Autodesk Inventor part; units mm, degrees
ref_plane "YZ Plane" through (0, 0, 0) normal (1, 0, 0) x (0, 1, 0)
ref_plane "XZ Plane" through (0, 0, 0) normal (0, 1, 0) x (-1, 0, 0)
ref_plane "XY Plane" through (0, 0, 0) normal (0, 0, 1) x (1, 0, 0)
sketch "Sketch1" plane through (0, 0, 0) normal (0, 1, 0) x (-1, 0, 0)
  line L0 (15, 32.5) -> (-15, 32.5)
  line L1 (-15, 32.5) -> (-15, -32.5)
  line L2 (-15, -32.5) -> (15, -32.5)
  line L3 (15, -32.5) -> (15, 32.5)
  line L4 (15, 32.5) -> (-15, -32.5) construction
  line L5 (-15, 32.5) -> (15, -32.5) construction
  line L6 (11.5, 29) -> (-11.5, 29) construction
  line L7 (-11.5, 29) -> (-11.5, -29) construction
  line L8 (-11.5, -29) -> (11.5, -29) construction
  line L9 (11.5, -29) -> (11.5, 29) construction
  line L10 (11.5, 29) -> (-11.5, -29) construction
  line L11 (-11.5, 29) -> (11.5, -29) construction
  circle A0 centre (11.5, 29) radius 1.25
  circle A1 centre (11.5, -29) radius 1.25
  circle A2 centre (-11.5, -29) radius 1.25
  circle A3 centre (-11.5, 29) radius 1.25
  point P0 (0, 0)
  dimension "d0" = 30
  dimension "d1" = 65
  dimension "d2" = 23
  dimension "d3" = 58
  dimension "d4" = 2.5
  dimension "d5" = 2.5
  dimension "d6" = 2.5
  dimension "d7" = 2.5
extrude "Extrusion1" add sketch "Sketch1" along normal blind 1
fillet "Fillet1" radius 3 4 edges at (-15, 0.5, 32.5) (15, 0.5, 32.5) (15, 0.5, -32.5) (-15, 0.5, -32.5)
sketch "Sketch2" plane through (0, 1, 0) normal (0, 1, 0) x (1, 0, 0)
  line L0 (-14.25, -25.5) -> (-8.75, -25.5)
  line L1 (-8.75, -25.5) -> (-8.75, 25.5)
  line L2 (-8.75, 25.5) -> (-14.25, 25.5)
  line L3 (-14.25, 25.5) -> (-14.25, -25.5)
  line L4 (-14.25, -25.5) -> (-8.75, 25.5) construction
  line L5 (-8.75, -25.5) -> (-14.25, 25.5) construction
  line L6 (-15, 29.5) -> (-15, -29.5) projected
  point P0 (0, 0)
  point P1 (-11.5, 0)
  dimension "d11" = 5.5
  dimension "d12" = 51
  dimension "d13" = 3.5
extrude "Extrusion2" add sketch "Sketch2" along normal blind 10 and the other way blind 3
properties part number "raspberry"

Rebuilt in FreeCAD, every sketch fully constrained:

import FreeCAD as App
import Part
import Sketcher

V = App.Vector


def edges_at(feature, points):
    """Names of the edges that pass closest to the given points."""
    edges = feature.Shape.Edges
    near = lambda p: min(range(len(edges)), key=lambda i: edges[i].distToShape(Part.Vertex(*p))[0])
    return sorted({f"Edge{near(p) + 1}" for p in points})


def add_polygon(sketch, points):
    """Adds a closed chain of lines whose ends are joined by coincident constraints."""
    first, n = sketch.GeometryCount, len(points)
    for a, b in zip(points, points[1:] + points[:1]):
        sketch.addGeometry(Part.LineSegment(App.Vector(*a, 0), App.Vector(*b, 0)), False)
    for i in range(n):
        sketch.addConstraint(Sketcher.Constraint("Coincident", first + i, 2, first + (i + 1) % n, 1))

doc = App.newDocument("Part")
params = doc.addObject("Spreadsheet::Sheet", "Params")
for row, (alias, value) in enumerate([
    ("sketch1_diameter", "2.5 mm"),
    ("sketch1_width", "30 mm"),
    ("sketch1_height", "65 mm"),
    ("pad1_length", "1 mm"),
    ("fillet_radius", "3 mm"),
    ("sketch2_height", "51 mm"),
    ("sketch2_width", "5.5 mm"),
    ("pad2_length", "10 mm"),
    ("pad2_length2", "3 mm"),
], start=1):
    params.set(f"A{row}", alias)
    params.set(f"B{row}", "=" + value)
    params.setAlias(f"B{row}", alias)

body = doc.addObject("PartDesign::Body", "Body")

# Sketch on XZ plane
sketch1 = doc.addObject("Sketcher::SketchObject", "Sketch")
body.addObject(sketch1)
sketch1.AttachmentSupport = (doc.XZ_Plane, [""])
sketch1.MapMode = "FlatFace"
add_polygon(sketch1, [(-15, -32.5), (-15, 32.5), (15, 32.5), (15, -32.5)])  # lines 0-3
sketch1.addGeometry(Part.Circle(V(11.5, -29, 0), V(0, 0, 1), 1.2), False)  # 4
sketch1.addGeometry(Part.Circle(V(-11.5, -29, 0), V(0, 0, 1), 1.2), False)  # 5
sketch1.addGeometry(Part.Circle(V(11.5, 29, 0), V(0, 0, 1), 1.2), False)  # 6
sketch1.addGeometry(Part.Circle(V(-11.5, 29, 0), V(0, 0, 1), 1.2), False)  # 7
sketch1.addConstraint([
    Sketcher.Constraint("Vertical", 0),
    Sketcher.Constraint("Horizontal", 1),
    Sketcher.Constraint("Vertical", 2),
    Sketcher.Constraint("Horizontal", 3),
    Sketcher.Constraint("Equal", 4, 5),
    Sketcher.Constraint("Equal", 5, 6),
    Sketcher.Constraint("Equal", 6, 7),
    Sketcher.Constraint("Symmetric", 5, 3, 6, 3, -1, 1),
    Sketcher.Constraint("Symmetric", 4, 3, 7, 3, -1, 1),
    Sketcher.Constraint("Symmetric", 0, 2, 2, 2, -1, 1),
    Sketcher.Constraint("Symmetric", 4, 3, 5, 3, -2),
    Sketcher.Constraint("Diameter", 4, 2.5),
    Sketcher.Constraint("DistanceX", 1, 1, 1, 2, 30.0),
    Sketcher.Constraint("DistanceY", 0, 1, 0, 2, 65.0),
    Sketcher.Constraint("DistanceX", 5, 3, 4, 3, 23.0),
    Sketcher.Constraint("DistanceY", 4, 3, 6, 3, 58.0),
])
sketch1.setExpression("Constraints[15]", "Params.sketch1_diameter")
sketch1.setExpression("Constraints[16]", "Params.sketch1_width")
sketch1.setExpression("Constraints[17]", "Params.sketch1_height")
pad1 = doc.addObject("PartDesign::Pad", "Pad")
body.addObject(pad1)
pad1.Profile = sketch1
pad1.setExpression("Length", "Params.pad1_length")
pad1.Reversed = True
doc.recompute()

fillet = doc.addObject("PartDesign::Fillet", "Fillet")
body.addObject(fillet)
fillet.Base = (pad1, edges_at(pad1, [
    (-15, 0.5, 32.5),
    (15, 0.5, 32.5),
    (15, 0.5, -32.5),
    (-15, 0.5, -32.5),
]))
fillet.setExpression("Radius", "Params.fillet_radius")

# Sketch on XZ plane
sketch2 = doc.addObject("Sketcher::SketchObject", "Sketch001")
body.addObject(sketch2)
sketch2.AttachmentSupport = (doc.XZ_Plane, [""])
sketch2.MapMode = "FlatFace"
sketch2.AttachmentOffset = App.Placement(V(0, 0, -1), App.Rotation())
add_polygon(sketch2, [(-14, -26), (-14, 26), (-9, 26), (-9, -26)])  # lines 0-3
sketch2.addConstraint([
    Sketcher.Constraint("Vertical", 0),
    Sketcher.Constraint("Horizontal", 1),
    Sketcher.Constraint("Vertical", 2),
    Sketcher.Constraint("Horizontal", 3),
    Sketcher.Constraint("DistanceY", 0, 1, 0, 2, 51.0),
    Sketcher.Constraint("DistanceX", 1, 1, 1, 2, 5.5),
    Sketcher.Constraint("DistanceY", -1, 1, 0, 2, 25.5),
    Sketcher.Constraint("DistanceX", 0, 2, -1, 1, 14.25),
])
sketch2.setExpression("Constraints[8]", "Params.sketch2_height")
sketch2.setExpression("Constraints[9]", "Params.sketch2_width")
pad2 = doc.addObject("PartDesign::Pad", "Pad001")
body.addObject(pad2)
pad2.Profile = sketch2
pad2.Type = "TwoLengths"
pad2.setExpression("Length", "Params.pad2_length")
pad2.setExpression("Length2", "Params.pad2_length2")
pad2.Reversed = True

doc.recompute()
